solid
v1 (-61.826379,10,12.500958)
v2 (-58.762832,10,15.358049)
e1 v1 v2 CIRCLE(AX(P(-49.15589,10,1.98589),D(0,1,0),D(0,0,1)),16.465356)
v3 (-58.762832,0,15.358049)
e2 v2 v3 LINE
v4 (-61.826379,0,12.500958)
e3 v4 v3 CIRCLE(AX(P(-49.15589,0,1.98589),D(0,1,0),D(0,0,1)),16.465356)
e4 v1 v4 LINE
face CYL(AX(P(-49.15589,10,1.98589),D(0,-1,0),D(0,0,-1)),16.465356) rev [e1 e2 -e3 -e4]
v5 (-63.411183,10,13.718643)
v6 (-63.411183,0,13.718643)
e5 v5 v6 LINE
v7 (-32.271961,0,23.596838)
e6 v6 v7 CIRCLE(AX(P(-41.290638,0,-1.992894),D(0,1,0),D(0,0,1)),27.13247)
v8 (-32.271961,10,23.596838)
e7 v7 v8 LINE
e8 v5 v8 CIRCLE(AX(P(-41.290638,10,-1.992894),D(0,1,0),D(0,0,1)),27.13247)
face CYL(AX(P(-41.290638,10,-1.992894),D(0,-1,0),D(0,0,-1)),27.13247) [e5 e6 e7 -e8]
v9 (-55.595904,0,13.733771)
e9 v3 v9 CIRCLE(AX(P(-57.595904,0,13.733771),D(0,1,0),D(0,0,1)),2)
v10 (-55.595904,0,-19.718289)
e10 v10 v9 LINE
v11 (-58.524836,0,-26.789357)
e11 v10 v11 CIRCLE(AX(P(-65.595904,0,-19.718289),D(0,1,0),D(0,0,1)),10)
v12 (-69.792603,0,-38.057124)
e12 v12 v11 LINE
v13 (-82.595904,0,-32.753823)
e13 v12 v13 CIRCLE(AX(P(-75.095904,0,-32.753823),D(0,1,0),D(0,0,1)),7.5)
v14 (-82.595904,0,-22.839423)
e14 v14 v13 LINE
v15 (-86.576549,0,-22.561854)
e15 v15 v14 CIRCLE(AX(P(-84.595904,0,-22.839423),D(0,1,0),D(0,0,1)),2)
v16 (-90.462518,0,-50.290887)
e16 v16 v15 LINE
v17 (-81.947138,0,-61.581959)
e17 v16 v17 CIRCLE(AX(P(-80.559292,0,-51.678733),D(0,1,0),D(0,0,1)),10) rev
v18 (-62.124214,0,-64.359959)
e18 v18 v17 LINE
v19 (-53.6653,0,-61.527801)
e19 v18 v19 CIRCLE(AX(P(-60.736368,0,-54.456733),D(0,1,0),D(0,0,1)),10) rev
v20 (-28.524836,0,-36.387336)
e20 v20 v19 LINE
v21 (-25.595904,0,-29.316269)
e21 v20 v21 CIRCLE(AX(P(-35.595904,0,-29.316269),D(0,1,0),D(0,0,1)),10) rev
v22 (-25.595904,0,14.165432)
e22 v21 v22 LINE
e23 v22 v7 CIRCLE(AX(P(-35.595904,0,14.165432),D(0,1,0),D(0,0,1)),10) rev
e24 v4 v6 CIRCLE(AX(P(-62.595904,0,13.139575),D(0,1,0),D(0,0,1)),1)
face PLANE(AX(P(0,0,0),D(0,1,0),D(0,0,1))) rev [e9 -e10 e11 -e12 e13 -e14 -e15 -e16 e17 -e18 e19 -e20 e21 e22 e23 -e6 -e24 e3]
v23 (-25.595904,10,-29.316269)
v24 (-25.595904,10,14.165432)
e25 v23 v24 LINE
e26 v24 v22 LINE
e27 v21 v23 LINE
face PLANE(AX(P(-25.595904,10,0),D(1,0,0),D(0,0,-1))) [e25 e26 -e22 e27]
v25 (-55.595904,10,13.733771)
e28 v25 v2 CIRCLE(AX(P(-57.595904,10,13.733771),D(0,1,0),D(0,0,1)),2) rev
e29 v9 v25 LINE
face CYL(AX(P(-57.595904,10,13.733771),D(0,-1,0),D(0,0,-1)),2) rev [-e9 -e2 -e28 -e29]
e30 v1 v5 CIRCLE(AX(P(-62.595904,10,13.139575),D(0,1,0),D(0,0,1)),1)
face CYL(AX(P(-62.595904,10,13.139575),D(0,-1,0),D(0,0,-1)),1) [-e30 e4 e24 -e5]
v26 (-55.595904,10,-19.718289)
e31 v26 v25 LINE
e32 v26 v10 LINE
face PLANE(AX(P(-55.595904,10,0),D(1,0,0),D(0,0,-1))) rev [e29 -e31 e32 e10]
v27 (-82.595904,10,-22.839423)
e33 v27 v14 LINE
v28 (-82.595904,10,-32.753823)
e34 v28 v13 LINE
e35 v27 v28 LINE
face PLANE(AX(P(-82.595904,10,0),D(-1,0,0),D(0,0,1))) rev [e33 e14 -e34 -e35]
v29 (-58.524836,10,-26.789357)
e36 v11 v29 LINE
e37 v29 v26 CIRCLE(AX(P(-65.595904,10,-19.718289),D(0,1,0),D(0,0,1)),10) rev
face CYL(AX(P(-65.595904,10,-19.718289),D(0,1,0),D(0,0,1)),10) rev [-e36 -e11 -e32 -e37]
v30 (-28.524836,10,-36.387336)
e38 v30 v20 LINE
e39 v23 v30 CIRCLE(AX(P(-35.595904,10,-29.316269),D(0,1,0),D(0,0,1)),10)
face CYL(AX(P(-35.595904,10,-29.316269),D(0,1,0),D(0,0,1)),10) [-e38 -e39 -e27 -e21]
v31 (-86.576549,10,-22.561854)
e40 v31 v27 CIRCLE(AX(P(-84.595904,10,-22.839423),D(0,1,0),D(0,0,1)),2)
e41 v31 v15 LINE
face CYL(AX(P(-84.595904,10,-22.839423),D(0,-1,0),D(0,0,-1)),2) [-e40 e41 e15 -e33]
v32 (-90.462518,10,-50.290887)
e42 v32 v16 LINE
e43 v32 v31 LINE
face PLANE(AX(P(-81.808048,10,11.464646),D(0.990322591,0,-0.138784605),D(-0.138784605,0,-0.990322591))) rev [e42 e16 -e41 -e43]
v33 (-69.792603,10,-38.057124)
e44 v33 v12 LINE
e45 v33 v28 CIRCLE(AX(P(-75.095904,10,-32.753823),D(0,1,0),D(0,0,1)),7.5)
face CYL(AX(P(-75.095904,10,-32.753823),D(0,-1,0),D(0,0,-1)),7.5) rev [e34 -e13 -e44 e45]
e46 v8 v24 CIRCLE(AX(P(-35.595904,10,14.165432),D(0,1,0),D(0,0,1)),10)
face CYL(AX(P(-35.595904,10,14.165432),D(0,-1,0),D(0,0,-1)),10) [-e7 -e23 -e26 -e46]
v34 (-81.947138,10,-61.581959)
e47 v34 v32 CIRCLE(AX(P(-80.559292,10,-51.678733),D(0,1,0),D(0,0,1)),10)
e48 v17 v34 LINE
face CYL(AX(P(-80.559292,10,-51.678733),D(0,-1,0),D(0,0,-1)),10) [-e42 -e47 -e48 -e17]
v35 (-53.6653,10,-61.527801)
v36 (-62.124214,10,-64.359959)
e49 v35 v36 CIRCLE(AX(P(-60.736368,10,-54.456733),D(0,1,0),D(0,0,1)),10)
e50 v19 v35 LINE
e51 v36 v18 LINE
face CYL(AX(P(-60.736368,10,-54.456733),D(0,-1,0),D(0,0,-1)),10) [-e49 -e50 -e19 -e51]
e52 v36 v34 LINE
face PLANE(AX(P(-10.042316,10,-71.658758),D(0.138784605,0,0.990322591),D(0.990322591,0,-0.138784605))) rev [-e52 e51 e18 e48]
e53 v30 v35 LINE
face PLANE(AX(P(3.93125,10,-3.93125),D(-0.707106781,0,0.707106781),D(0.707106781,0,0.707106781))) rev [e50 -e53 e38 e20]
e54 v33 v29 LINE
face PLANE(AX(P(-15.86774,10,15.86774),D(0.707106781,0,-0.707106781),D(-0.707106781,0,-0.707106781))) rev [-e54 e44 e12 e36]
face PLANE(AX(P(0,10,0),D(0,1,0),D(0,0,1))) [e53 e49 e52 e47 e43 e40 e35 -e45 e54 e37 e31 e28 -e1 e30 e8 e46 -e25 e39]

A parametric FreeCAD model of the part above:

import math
import FreeCAD as App
import Part
import Sketcher

V = App.Vector
Q = App.Units.Quantity


def edges_at(feature, points):
    """Names of the edges that pass closest to the given points."""
    edges = feature.Shape.Edges
    near = lambda p: min(range(len(edges)), key=lambda i: edges[i].distToShape(Part.Vertex(*p))[0])
    return sorted({f"Edge{near(p) + 1}" for p in points})

doc = App.newDocument("Part")
params = doc.addObject("Spreadsheet::Sheet", "Params")
for row, (alias, value) in enumerate([
    ("sketch1_radius", "1 mm"),
    ("sketch1_radius2", "2 mm"),
    ("sketch1_radius3", "7.5 mm"),
    ("sketch1_height", "41 mm"),
    ("sketch1_length", "35 mm"),
    ("pad1_length", "10 mm"),
    ("fillet_radius", "10 mm"),
    ("fillet2_radius", "2 mm"),
], start=1):
    params.set(f"A{row}", alias)
    params.set(f"B{row}", "=" + value)
    params.setAlias(f"B{row}", alias)

body = doc.addObject("PartDesign::Body", "Body")

sketch1 = doc.addObject("Sketcher::SketchObject", "Sketch")
body.addObject(sketch1)
sketch1.AttachmentSupport = (doc.XZ_Plane, [""])
sketch1.MapMode = "FlatFace"
sketch1.addGeometry(Part.LineSegment(V(-55.595904, -23.860425, 0), V(-55.595904, 17.139575, 0)), False)
sketch1.addGeometry(Part.ArcOfCircle(Part.Circle(V(-49.15589, 1.98589, 0), V(0, 0, 1), 16.465356), math.radians(113.024524), math.radians(140.311179)), False)
sketch1.addGeometry(Part.ArcOfCircle(Part.Circle(V(-62.595904, 13.139575, 0), V(0, 0, 1), 1), math.radians(144.615), math.radians(320.311182)), False)
sketch1.addGeometry(Part.ArcOfCircle(Part.Circle(V(-41.290638, -1.992894, 0), V(0, 0, 1), 27.13247), math.radians(54.658512), math.radians(144.615002)), False)
sketch1.addGeometry(Part.LineSegment(V(-25.595904, 20.139575, 0), V(-25.595904, -33.458404, 0)), False)
sketch1.addGeometry(Part.LineSegment(V(-25.595904, -33.458404, 0), V(-57.189073, -65.051574, 0)), False)
sketch1.addGeometry(Part.LineSegment(V(-57.189073, -65.051574, 0), V(-91.850364, -60.194113, 0)), False)
sketch1.addGeometry(Part.LineSegment(V(-91.850364, -60.194113, 0), V(-86.576549, -22.561854, 0)), False)
sketch1.addGeometry(Part.ArcOfCircle(Part.Circle(V(-84.595904, -22.839423, 0), V(0, 0, 1), 2), math.radians(0), math.radians(172.022486)), False)
sketch1.addGeometry(Part.LineSegment(V(-82.595904, -22.839423, 0), V(-82.595904, -32.753823, 0)), False)
sketch1.addGeometry(Part.ArcOfCircle(Part.Circle(V(-75.095904, -32.753823, 0), V(0, 0, 1), 7.5), math.radians(180), math.radians(315)), False)
sketch1.addGeometry(Part.LineSegment(V(-69.792603, -38.057124, 0), V(-55.595904, -23.860425, 0)), False)
sketch1.addConstraint(Sketcher.Constraint("Coincident", 0, 2, 1, 1))
sketch1.addConstraint(Sketcher.Constraint("Tangent", 1, 2, 2, 2))
sketch1.addConstraint(Sketcher.Constraint("Tangent", 2, 1, 3, 2))
sketch1.addConstraint(Sketcher.Constraint("Coincident", 3, 1, 4, 1))
sketch1.addConstraint(Sketcher.Constraint("Coincident", 4, 2, 5, 1))
sketch1.addConstraint(Sketcher.Constraint("Coincident", 5, 2, 6, 1))
sketch1.addConstraint(Sketcher.Constraint("Coincident", 6, 2, 7, 1))
sketch1.addConstraint(Sketcher.Constraint("Tangent", 7, 2, 8, 2))
sketch1.addConstraint(Sketcher.Constraint("Tangent", 8, 1, 9, 1))
sketch1.addConstraint(Sketcher.Constraint("Tangent", 9, 2, 10, 1))
sketch1.addConstraint(Sketcher.Constraint("Tangent", 10, 2, 11, 1))
sketch1.addConstraint(Sketcher.Constraint("Coincident", 11, 2, 0, 1))
sketch1.addConstraint(Sketcher.Constraint("Vertical", 0))
sketch1.addConstraint(Sketcher.Constraint("Vertical", 4))
sketch1.addConstraint(Sketcher.Constraint("Vertical", 9))
sketch1.addConstraint(Sketcher.Constraint("Perpendicular", 6, 7))
sketch1.addConstraint(Sketcher.Constraint("Parallel", 5, 11))
sketch1.addConstraint(Sketcher.Constraint("Radius", 2, Q("1 mm")))
sketch1.addConstraint(Sketcher.Constraint("Radius", 8, Q("2 mm")))
sketch1.addConstraint(Sketcher.Constraint("Radius", 10, Q("7.5 mm")))
sketch1.addConstraint(Sketcher.Constraint("DistanceY", 0, 1, 0, 2, Q("41 mm")))
sketch1.addConstraint(Sketcher.Constraint("Angle", 5, Q("-135 deg")))
sketch1.addConstraint(Sketcher.Constraint("Distance", 6, Q("35 mm")))
sketch1.addConstraint(Sketcher.Constraint("Distance", 7, Q("38 mm")))
sketch1.addConstraint(Sketcher.Constraint("DistanceX", 8, 3, 2, 3, Q("22 mm")))
sketch1.addConstraint(Sketcher.Constraint("DistanceX", 2, 3, 0, 2, Q("7 mm")))
sketch1.addConstraint(Sketcher.Constraint("DistanceY", 2, 3, 0, 2, Q("4 mm")))
sketch1.addConstraint(Sketcher.Constraint("DistanceX", 0, 2, 3, 1, Q("30 mm")))
sketch1.addConstraint(Sketcher.Constraint("DistanceY", 0, 2, 3, 1, Q("3 mm")))
sketch1.addConstraint(Sketcher.Constraint("Radius", 3, Q("27.13247 mm")))
sketch1.addConstraint(Sketcher.Constraint("DistanceY", 9, 2, 9, 1, Q("9.914399 mm")))
sketch1.addConstraint(Sketcher.Constraint("Radius", 1, Q("16.465356 mm")))
sketch1.addConstraint(Sketcher.Constraint("DistanceY", 4, 2, 4, 1, Q("53.59798 mm")))
sketch1.addConstraint(Sketcher.Constraint("DistanceX", 1, 3, -1, 1, Q("49.15589 mm")))
sketch1.addConstraint(Sketcher.Constraint("DistanceY", -1, 1, 1, 3, Q("1.98589 mm")))
sketch1.setExpression("Constraints[17]", "Params.sketch1_radius")
sketch1.setExpression("Constraints[18]", "Params.sketch1_radius2")
sketch1.setExpression("Constraints[19]", "Params.sketch1_radius3")
sketch1.setExpression("Constraints[20]", "Params.sketch1_height")
sketch1.setExpression("Constraints[22]", "Params.sketch1_length")
pad1 = doc.addObject("PartDesign::Pad", "Pad")
body.addObject(pad1)
pad1.Profile = sketch1
pad1.setExpression("Length", "Params.pad1_length")
pad1.Reversed = True
doc.recompute()

fillet = doc.addObject("PartDesign::Fillet", "Fillet")
body.addObject(fillet)
fillet.Base = (pad1, edges_at(pad1, [
    (-25.596, 5, -33.458),
    (-25.596, 5, 20.14),
    (-55.596, 5, -23.86),
    (-91.85, 5, -60.194),
    (-57.189, 5, -65.052),
]))
fillet.setExpression("Radius", "Params.fillet_radius")
doc.recompute()

fillet2 = doc.addObject("PartDesign::Fillet", "Fillet001")
body.addObject(fillet2)
fillet2.Base = (fillet, edges_at(fillet, [(-55.596, 5, 17.14)]))
fillet2.setExpression("Radius", "Params.fillet2_radius")

doc.recompute()
